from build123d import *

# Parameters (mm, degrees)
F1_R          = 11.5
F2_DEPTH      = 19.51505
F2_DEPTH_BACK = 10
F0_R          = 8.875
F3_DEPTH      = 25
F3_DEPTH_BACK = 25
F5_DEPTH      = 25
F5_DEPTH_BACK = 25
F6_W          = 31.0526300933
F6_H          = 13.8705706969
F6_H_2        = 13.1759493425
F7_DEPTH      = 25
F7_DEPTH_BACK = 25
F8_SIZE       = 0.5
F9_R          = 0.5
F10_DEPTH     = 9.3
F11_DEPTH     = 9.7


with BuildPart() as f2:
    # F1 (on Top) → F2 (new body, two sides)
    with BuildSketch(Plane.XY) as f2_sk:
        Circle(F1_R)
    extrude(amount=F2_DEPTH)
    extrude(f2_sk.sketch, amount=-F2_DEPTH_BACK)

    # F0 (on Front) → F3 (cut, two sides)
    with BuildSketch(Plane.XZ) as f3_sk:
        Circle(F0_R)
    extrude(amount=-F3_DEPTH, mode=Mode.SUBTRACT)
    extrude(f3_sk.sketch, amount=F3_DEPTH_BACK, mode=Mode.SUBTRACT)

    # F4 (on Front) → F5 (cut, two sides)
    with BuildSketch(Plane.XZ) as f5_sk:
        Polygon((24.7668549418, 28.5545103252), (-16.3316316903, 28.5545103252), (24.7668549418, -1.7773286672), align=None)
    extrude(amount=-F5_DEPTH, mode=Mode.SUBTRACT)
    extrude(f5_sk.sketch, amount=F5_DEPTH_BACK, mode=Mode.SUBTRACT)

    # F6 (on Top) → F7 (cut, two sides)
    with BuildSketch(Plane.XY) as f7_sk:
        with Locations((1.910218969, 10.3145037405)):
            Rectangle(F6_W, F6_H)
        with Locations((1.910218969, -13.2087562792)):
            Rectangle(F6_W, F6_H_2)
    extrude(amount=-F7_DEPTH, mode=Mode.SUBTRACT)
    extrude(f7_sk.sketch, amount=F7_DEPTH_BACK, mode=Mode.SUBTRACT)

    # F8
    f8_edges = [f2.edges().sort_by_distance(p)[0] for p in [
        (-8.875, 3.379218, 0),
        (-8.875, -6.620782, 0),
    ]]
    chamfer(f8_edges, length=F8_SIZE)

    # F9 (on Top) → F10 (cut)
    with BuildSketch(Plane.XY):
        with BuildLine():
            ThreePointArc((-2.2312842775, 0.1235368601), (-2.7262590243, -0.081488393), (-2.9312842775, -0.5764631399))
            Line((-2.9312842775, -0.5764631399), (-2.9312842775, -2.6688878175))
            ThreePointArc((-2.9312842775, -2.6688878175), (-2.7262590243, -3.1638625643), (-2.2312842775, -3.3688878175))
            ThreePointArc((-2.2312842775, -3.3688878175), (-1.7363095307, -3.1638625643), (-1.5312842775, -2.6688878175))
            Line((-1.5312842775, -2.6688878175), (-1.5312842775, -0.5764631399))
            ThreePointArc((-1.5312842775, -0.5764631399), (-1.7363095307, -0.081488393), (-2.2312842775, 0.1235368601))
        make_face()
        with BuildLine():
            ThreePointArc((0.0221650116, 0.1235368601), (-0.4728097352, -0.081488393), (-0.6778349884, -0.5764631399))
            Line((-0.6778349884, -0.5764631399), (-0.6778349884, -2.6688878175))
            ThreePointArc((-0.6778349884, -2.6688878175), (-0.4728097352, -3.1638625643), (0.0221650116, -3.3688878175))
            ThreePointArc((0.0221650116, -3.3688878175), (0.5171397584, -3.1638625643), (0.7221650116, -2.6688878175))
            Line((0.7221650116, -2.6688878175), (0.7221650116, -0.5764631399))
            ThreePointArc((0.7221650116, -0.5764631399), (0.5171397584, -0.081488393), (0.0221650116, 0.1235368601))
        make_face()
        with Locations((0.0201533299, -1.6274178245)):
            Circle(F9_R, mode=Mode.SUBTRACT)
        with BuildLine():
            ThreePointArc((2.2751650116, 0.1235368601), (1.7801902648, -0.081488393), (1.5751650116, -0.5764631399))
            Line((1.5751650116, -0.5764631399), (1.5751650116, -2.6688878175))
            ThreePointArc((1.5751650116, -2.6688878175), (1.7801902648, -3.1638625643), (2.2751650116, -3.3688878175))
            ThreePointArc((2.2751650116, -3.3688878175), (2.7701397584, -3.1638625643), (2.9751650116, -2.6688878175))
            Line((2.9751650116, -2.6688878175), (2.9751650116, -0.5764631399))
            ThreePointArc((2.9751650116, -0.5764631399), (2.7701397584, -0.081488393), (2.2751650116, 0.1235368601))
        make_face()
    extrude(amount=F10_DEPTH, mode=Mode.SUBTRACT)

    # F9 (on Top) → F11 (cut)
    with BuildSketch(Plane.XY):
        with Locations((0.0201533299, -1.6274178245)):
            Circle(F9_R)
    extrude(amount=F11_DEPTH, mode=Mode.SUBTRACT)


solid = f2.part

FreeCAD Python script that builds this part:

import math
import FreeCAD as App
import Part
import Sketcher

V = App.Vector


def edges_at(feature, points):
    """Names of the edges that pass closest to the given points."""
    edges = feature.Shape.Edges
    near = lambda p: min(range(len(edges)), key=lambda i: edges[i].distToShape(Part.Vertex(*p))[0])
    return sorted({f"Edge{near(p) + 1}" for p in points})


def add_polygon(sketch, points):
    """Adds a closed chain of lines whose ends are joined by coincident constraints."""
    first, n = sketch.GeometryCount, len(points)
    for a, b in zip(points, points[1:] + points[:1]):
        sketch.addGeometry(Part.LineSegment(App.Vector(*a, 0), App.Vector(*b, 0)), False)
    for i in range(n):
        sketch.addConstraint(Sketcher.Constraint("Coincident", first + i, 2, first + (i + 1) % n, 1))

doc = App.newDocument("Part")
body = doc.addObject("PartDesign::Body", "Body")

sketch1 = body.newObject("Sketcher::SketchObject", "Sketch")
sketch1.AttachmentSupport = (doc.getObject("XY_Plane"), [""])
sketch1.MapMode = "FlatFace"
sketch1.addGeometry(Part.Circle(V(0, 0, 0), V(0, 0, 1), 12), False)
sketch1.addConstraint([
    Sketcher.Constraint("Coincident", 0, 3, -1, 1),
    Sketcher.Constraint("Diameter", 0, 23.0),
])
pad1 = body.newObject("PartDesign::Pad", "Pad")
pad1.Profile = sketch1
pad1.Type = "TwoLengths"
pad1.Length = 19.51505
pad1.Length2 = 10

sketch2 = body.newObject("Sketcher::SketchObject", "Sketch001")
sketch2.AttachmentSupport = (doc.getObject("XZ_Plane"), [""])
sketch2.MapMode = "FlatFace"
sketch2.addGeometry(Part.Circle(V(0, 0, 0), V(0, 0, 1), 9), False)
sketch2.addConstraint([
    Sketcher.Constraint("Coincident", 0, 3, -1, 1),
    Sketcher.Constraint("Diameter", 0, 17.75),
])
pocket1 = body.newObject("PartDesign::Pocket", "Pocket")
pocket1.Profile = sketch2
pocket1.Type = "ThroughAll"
pocket1.Midplane = True

sketch3 = body.newObject("Sketcher::SketchObject", "Sketch002")
sketch3.AttachmentSupport = (doc.getObject("XZ_Plane"), [""])
sketch3.MapMode = "FlatFace"
add_polygon(sketch3, [(25, 29), (-16, 29), (25, -2)])
sketch3.addConstraint([
    Sketcher.Constraint("Horizontal", 0),
    Sketcher.Constraint("Vertical", 2),
    Sketcher.Constraint("DistanceY", 2, 1, 2, 2, 30.331839),
    Sketcher.Constraint("Distance", 1, 51.079409),
    Sketcher.Constraint("DistanceX", 0, 2, -1, 1, 16.331632),
    Sketcher.Constraint("DistanceY", -1, 1, 0, 2, 28.55451),
])
pocket2 = body.newObject("PartDesign::Pocket", "Pocket001")
pocket2.Profile = sketch3
pocket2.Type = "ThroughAll"
pocket2.Midplane = True

sketch4 = body.newObject("Sketcher::SketchObject", "Sketch003")
sketch4.AttachmentSupport = (doc.getObject("XY_Plane"), [""])
sketch4.MapMode = "FlatFace"
add_polygon(sketch4, [(-14, 17), (-14, 3), (17, 3), (17, 17)])
add_polygon(sketch4, [(-14, -7), (-14, -20), (17, -20), (17, -7)])
sketch4.addConstraint([
    Sketcher.Constraint("Vertical", 0),
    Sketcher.Constraint("Horizontal", 1),
    Sketcher.Constraint("Vertical", 2),
    Sketcher.Constraint("Horizontal", 3),
    Sketcher.Constraint("Vertical", 4),
    Sketcher.Constraint("Horizontal", 5),
    Sketcher.Constraint("Vertical", 6),
    Sketcher.Constraint("Horizontal", 7),
    Sketcher.Constraint("Vertical", 3, 2, 4, 2),
    Sketcher.Constraint("Vertical", 2, 2, 5, 2),
    Sketcher.Constraint("DistanceY", 6, 2, 1, 2, 10.0),
    Sketcher.Constraint("DistanceX", 1, 1, 1, 2, 31.05263),
    Sketcher.Constraint("DistanceY", 0, 2, 0, 1, 13.870571),
    Sketcher.Constraint("DistanceY", 4, 2, 4, 1, 13.175949),
    Sketcher.Constraint("DistanceY", -1, 1, 0, 2, 3.379218),
    Sketcher.Constraint("DistanceX", 0, 2, -1, 1, 13.616096),
])
pocket3 = body.newObject("PartDesign::Pocket", "Pocket002")
pocket3.Profile = sketch4
pocket3.Type = "ThroughAll"
pocket3.Midplane = True
doc.recompute()

chamfer = body.newObject("PartDesign::Chamfer", "Chamfer")
chamfer.Base = (pocket3, edges_at(pocket3, [(-8.875, 3.379, 0), (-8.875, -6.621, 0)]))
chamfer.Size = 0.5

sketch5 = body.newObject("Sketcher::SketchObject", "Sketch004")
sketch5.AttachmentSupport = (doc.getObject("XY_Plane"), [""])
sketch5.MapMode = "FlatFace"
sketch5.addGeometry([
    Part.ArcOfCircle(Part.Circle(V(-2.2, -0.6, 0), V(0, 0, 1), 0.7), math.radians(90), math.radians(180)),
    Part.LineSegment(V(-2.9, -0.6, 0), V(-2.9, -2.7, 0)),
    Part.ArcOfCircle(Part.Circle(V(-2.2, -2.7, 0), V(0, 0, 1), 0.7), math.radians(180), math.radians(270)),
    Part.ArcOfCircle(Part.Circle(V(-2.2, -2.7, 0), V(0, 0, 1), 0.7), math.radians(-90), math.radians(0)),
    Part.LineSegment(V(-1.5, -2.7, 0), V(-1.5, -0.6, 0)),
    Part.ArcOfCircle(Part.Circle(V(-2.2, -0.6, 0), V(0, 0, 1), 0.7), math.radians(0), math.radians(90)),
    Part.ArcOfCircle(Part.Circle(V(0, -0.6, 0), V(0, 0, 1), 0.7), math.radians(90), math.radians(180)),
    Part.LineSegment(V(-0.7, -0.6, 0), V(-0.7, -2.7, 0)),
    Part.ArcOfCircle(Part.Circle(V(0, -2.7, 0), V(0, 0, 1), 0.7), math.radians(180), math.radians(270)),
    Part.ArcOfCircle(Part.Circle(V(0, -2.7, 0), V(0, 0, 1), 0.7), math.radians(-90), math.radians(0)),
    Part.LineSegment(V(0.7, -2.7, 0), V(0.7, -0.6, 0)),
    Part.ArcOfCircle(Part.Circle(V(0, -0.6, 0), V(0, 0, 1), 0.7), math.radians(0), math.radians(90)),
    Part.Circle(V(0, -1.6, 0), V(0, 0, 1), 0.5),
    Part.ArcOfCircle(Part.Circle(V(2.3, -0.6, 0), V(0, 0, 1), 0.7), math.radians(90), math.radians(180)),
    Part.LineSegment(V(1.6, -0.6, 0), V(1.6, -2.7, 0)),
    Part.ArcOfCircle(Part.Circle(V(2.3, -2.7, 0), V(0, 0, 1), 0.7), math.radians(180), math.radians(270)),
    Part.ArcOfCircle(Part.Circle(V(2.3, -2.7, 0), V(0, 0, 1), 0.7), math.radians(-90), math.radians(0)),
    Part.LineSegment(V(3, -2.7, 0), V(3, -0.6, 0)),
    Part.ArcOfCircle(Part.Circle(V(2.3, -0.6, 0), V(0, 0, 1), 0.7), math.radians(0), math.radians(90)),
], False)
sketch5.addConstraint([
    Sketcher.Constraint("Tangent", 0, 2, 1, 1),
    Sketcher.Constraint("Tangent", 1, 2, 2, 1),
    Sketcher.Constraint("Tangent", 2, 2, 3, 1),
    Sketcher.Constraint("Tangent", 3, 2, 4, 1),
    Sketcher.Constraint("Tangent", 4, 2, 5, 1),
    Sketcher.Constraint("Tangent", 5, 2, 0, 1),
    Sketcher.Constraint("Tangent", 6, 2, 7, 1),
    Sketcher.Constraint("Tangent", 7, 2, 8, 1),
    Sketcher.Constraint("Tangent", 8, 2, 9, 1),
    Sketcher.Constraint("Tangent", 9, 2, 10, 1),
    Sketcher.Constraint("Tangent", 10, 2, 11, 1),
    Sketcher.Constraint("Tangent", 11, 2, 6, 1),
    Sketcher.Constraint("Tangent", 13, 2, 14, 1),
    Sketcher.Constraint("Tangent", 14, 2, 15, 1),
    Sketcher.Constraint("Tangent", 15, 2, 16, 1),
    Sketcher.Constraint("Tangent", 16, 2, 17, 1),
    Sketcher.Constraint("Tangent", 17, 2, 18, 1),
    Sketcher.Constraint("Tangent", 18, 2, 13, 1),
    Sketcher.Constraint("Vertical", 1),
    Sketcher.Constraint("Vertical", 4),
    Sketcher.Constraint("Vertical", 7),
    Sketcher.Constraint("Vertical", 10),
    Sketcher.Constraint("Vertical", 14),
    Sketcher.Constraint("Vertical", 17),
    Sketcher.Constraint("Equal", 0, 2),
    Sketcher.Constraint("Equal", 2, 3),
    Sketcher.Constraint("Equal", 5, 6),
    Sketcher.Constraint("Equal", 6, 8),
    Sketcher.Constraint("Equal", 8, 9),
    Sketcher.Constraint("Equal", 11, 13),
    Sketcher.Constraint("Equal", 13, 15),
    Sketcher.Constraint("Equal", 15, 16),
    Sketcher.Constraint("Horizontal", 5, 3, 6, 3),
    Sketcher.Constraint("Horizontal", 3, 3, 8, 3),
    Sketcher.Constraint("Horizontal", 11, 3, 13, 3),
    Sketcher.Constraint("Horizontal", 9, 3, 15, 3),
    Sketcher.Constraint("Vertical", 5, 3, 2, 2),
    Sketcher.Constraint("Vertical", 2, 2, 5, 2),
    Sketcher.Constraint("Vertical", 11, 3, 8, 2),
    Sketcher.Constraint("Vertical", 8, 2, 11, 2),
    Sketcher.Constraint("Vertical", 18, 3, 15, 2),
    Sketcher.Constraint("Vertical", 15, 2, 18, 2),
    Sketcher.Constraint("Diameter", 12, 1.0),
    Sketcher.Constraint("Radius", 0, 0.7),
    Sketcher.Constraint("DistanceX", 6, 3, 13, 3, 2.253),
    Sketcher.Constraint("DistanceY", 1, 2, 1, 1, 2.092425),
    Sketcher.Constraint("DistanceX", 5, 3, 6, 3, 2.253449),
    Sketcher.Constraint("DistanceX", 12, 3, 9, 3, 0.002012),
    Sketcher.Constraint("DistanceY", 9, 3, 12, 3, 1.04147),
    Sketcher.Constraint("DistanceX", 0, 3, -1, 1, 2.231284),
    Sketcher.Constraint("DistanceY", 0, 3, -1, 1, 0.576463),
])
pocket4 = body.newObject("PartDesign::Pocket", "Pocket003")
pocket4.Profile = sketch5
pocket4.Length = 9.3
pocket4.Reversed = True

sketch6 = body.newObject("Sketcher::SketchObject", "Sketch005")
sketch6.AttachmentSupport = (doc.getObject("XY_Plane"), [""])
sketch6.MapMode = "FlatFace"
sketch6.addGeometry(Part.Circle(V(0, -1.6, 0), V(0, 0, 1), 0.5), False)
sketch6.addConstraint([
    Sketcher.Constraint("Diameter", 0, 1.0),
    Sketcher.Constraint("DistanceX", -1, 1, 0, 3, 0.020153),
    Sketcher.Constraint("DistanceY", 0, 3, -1, 1, 1.627418),
])
pocket5 = body.newObject("PartDesign::Pocket", "Pocket004")
pocket5.Profile = sketch6
pocket5.Length = 9.7
pocket5.Reversed = True

doc.recompute()
